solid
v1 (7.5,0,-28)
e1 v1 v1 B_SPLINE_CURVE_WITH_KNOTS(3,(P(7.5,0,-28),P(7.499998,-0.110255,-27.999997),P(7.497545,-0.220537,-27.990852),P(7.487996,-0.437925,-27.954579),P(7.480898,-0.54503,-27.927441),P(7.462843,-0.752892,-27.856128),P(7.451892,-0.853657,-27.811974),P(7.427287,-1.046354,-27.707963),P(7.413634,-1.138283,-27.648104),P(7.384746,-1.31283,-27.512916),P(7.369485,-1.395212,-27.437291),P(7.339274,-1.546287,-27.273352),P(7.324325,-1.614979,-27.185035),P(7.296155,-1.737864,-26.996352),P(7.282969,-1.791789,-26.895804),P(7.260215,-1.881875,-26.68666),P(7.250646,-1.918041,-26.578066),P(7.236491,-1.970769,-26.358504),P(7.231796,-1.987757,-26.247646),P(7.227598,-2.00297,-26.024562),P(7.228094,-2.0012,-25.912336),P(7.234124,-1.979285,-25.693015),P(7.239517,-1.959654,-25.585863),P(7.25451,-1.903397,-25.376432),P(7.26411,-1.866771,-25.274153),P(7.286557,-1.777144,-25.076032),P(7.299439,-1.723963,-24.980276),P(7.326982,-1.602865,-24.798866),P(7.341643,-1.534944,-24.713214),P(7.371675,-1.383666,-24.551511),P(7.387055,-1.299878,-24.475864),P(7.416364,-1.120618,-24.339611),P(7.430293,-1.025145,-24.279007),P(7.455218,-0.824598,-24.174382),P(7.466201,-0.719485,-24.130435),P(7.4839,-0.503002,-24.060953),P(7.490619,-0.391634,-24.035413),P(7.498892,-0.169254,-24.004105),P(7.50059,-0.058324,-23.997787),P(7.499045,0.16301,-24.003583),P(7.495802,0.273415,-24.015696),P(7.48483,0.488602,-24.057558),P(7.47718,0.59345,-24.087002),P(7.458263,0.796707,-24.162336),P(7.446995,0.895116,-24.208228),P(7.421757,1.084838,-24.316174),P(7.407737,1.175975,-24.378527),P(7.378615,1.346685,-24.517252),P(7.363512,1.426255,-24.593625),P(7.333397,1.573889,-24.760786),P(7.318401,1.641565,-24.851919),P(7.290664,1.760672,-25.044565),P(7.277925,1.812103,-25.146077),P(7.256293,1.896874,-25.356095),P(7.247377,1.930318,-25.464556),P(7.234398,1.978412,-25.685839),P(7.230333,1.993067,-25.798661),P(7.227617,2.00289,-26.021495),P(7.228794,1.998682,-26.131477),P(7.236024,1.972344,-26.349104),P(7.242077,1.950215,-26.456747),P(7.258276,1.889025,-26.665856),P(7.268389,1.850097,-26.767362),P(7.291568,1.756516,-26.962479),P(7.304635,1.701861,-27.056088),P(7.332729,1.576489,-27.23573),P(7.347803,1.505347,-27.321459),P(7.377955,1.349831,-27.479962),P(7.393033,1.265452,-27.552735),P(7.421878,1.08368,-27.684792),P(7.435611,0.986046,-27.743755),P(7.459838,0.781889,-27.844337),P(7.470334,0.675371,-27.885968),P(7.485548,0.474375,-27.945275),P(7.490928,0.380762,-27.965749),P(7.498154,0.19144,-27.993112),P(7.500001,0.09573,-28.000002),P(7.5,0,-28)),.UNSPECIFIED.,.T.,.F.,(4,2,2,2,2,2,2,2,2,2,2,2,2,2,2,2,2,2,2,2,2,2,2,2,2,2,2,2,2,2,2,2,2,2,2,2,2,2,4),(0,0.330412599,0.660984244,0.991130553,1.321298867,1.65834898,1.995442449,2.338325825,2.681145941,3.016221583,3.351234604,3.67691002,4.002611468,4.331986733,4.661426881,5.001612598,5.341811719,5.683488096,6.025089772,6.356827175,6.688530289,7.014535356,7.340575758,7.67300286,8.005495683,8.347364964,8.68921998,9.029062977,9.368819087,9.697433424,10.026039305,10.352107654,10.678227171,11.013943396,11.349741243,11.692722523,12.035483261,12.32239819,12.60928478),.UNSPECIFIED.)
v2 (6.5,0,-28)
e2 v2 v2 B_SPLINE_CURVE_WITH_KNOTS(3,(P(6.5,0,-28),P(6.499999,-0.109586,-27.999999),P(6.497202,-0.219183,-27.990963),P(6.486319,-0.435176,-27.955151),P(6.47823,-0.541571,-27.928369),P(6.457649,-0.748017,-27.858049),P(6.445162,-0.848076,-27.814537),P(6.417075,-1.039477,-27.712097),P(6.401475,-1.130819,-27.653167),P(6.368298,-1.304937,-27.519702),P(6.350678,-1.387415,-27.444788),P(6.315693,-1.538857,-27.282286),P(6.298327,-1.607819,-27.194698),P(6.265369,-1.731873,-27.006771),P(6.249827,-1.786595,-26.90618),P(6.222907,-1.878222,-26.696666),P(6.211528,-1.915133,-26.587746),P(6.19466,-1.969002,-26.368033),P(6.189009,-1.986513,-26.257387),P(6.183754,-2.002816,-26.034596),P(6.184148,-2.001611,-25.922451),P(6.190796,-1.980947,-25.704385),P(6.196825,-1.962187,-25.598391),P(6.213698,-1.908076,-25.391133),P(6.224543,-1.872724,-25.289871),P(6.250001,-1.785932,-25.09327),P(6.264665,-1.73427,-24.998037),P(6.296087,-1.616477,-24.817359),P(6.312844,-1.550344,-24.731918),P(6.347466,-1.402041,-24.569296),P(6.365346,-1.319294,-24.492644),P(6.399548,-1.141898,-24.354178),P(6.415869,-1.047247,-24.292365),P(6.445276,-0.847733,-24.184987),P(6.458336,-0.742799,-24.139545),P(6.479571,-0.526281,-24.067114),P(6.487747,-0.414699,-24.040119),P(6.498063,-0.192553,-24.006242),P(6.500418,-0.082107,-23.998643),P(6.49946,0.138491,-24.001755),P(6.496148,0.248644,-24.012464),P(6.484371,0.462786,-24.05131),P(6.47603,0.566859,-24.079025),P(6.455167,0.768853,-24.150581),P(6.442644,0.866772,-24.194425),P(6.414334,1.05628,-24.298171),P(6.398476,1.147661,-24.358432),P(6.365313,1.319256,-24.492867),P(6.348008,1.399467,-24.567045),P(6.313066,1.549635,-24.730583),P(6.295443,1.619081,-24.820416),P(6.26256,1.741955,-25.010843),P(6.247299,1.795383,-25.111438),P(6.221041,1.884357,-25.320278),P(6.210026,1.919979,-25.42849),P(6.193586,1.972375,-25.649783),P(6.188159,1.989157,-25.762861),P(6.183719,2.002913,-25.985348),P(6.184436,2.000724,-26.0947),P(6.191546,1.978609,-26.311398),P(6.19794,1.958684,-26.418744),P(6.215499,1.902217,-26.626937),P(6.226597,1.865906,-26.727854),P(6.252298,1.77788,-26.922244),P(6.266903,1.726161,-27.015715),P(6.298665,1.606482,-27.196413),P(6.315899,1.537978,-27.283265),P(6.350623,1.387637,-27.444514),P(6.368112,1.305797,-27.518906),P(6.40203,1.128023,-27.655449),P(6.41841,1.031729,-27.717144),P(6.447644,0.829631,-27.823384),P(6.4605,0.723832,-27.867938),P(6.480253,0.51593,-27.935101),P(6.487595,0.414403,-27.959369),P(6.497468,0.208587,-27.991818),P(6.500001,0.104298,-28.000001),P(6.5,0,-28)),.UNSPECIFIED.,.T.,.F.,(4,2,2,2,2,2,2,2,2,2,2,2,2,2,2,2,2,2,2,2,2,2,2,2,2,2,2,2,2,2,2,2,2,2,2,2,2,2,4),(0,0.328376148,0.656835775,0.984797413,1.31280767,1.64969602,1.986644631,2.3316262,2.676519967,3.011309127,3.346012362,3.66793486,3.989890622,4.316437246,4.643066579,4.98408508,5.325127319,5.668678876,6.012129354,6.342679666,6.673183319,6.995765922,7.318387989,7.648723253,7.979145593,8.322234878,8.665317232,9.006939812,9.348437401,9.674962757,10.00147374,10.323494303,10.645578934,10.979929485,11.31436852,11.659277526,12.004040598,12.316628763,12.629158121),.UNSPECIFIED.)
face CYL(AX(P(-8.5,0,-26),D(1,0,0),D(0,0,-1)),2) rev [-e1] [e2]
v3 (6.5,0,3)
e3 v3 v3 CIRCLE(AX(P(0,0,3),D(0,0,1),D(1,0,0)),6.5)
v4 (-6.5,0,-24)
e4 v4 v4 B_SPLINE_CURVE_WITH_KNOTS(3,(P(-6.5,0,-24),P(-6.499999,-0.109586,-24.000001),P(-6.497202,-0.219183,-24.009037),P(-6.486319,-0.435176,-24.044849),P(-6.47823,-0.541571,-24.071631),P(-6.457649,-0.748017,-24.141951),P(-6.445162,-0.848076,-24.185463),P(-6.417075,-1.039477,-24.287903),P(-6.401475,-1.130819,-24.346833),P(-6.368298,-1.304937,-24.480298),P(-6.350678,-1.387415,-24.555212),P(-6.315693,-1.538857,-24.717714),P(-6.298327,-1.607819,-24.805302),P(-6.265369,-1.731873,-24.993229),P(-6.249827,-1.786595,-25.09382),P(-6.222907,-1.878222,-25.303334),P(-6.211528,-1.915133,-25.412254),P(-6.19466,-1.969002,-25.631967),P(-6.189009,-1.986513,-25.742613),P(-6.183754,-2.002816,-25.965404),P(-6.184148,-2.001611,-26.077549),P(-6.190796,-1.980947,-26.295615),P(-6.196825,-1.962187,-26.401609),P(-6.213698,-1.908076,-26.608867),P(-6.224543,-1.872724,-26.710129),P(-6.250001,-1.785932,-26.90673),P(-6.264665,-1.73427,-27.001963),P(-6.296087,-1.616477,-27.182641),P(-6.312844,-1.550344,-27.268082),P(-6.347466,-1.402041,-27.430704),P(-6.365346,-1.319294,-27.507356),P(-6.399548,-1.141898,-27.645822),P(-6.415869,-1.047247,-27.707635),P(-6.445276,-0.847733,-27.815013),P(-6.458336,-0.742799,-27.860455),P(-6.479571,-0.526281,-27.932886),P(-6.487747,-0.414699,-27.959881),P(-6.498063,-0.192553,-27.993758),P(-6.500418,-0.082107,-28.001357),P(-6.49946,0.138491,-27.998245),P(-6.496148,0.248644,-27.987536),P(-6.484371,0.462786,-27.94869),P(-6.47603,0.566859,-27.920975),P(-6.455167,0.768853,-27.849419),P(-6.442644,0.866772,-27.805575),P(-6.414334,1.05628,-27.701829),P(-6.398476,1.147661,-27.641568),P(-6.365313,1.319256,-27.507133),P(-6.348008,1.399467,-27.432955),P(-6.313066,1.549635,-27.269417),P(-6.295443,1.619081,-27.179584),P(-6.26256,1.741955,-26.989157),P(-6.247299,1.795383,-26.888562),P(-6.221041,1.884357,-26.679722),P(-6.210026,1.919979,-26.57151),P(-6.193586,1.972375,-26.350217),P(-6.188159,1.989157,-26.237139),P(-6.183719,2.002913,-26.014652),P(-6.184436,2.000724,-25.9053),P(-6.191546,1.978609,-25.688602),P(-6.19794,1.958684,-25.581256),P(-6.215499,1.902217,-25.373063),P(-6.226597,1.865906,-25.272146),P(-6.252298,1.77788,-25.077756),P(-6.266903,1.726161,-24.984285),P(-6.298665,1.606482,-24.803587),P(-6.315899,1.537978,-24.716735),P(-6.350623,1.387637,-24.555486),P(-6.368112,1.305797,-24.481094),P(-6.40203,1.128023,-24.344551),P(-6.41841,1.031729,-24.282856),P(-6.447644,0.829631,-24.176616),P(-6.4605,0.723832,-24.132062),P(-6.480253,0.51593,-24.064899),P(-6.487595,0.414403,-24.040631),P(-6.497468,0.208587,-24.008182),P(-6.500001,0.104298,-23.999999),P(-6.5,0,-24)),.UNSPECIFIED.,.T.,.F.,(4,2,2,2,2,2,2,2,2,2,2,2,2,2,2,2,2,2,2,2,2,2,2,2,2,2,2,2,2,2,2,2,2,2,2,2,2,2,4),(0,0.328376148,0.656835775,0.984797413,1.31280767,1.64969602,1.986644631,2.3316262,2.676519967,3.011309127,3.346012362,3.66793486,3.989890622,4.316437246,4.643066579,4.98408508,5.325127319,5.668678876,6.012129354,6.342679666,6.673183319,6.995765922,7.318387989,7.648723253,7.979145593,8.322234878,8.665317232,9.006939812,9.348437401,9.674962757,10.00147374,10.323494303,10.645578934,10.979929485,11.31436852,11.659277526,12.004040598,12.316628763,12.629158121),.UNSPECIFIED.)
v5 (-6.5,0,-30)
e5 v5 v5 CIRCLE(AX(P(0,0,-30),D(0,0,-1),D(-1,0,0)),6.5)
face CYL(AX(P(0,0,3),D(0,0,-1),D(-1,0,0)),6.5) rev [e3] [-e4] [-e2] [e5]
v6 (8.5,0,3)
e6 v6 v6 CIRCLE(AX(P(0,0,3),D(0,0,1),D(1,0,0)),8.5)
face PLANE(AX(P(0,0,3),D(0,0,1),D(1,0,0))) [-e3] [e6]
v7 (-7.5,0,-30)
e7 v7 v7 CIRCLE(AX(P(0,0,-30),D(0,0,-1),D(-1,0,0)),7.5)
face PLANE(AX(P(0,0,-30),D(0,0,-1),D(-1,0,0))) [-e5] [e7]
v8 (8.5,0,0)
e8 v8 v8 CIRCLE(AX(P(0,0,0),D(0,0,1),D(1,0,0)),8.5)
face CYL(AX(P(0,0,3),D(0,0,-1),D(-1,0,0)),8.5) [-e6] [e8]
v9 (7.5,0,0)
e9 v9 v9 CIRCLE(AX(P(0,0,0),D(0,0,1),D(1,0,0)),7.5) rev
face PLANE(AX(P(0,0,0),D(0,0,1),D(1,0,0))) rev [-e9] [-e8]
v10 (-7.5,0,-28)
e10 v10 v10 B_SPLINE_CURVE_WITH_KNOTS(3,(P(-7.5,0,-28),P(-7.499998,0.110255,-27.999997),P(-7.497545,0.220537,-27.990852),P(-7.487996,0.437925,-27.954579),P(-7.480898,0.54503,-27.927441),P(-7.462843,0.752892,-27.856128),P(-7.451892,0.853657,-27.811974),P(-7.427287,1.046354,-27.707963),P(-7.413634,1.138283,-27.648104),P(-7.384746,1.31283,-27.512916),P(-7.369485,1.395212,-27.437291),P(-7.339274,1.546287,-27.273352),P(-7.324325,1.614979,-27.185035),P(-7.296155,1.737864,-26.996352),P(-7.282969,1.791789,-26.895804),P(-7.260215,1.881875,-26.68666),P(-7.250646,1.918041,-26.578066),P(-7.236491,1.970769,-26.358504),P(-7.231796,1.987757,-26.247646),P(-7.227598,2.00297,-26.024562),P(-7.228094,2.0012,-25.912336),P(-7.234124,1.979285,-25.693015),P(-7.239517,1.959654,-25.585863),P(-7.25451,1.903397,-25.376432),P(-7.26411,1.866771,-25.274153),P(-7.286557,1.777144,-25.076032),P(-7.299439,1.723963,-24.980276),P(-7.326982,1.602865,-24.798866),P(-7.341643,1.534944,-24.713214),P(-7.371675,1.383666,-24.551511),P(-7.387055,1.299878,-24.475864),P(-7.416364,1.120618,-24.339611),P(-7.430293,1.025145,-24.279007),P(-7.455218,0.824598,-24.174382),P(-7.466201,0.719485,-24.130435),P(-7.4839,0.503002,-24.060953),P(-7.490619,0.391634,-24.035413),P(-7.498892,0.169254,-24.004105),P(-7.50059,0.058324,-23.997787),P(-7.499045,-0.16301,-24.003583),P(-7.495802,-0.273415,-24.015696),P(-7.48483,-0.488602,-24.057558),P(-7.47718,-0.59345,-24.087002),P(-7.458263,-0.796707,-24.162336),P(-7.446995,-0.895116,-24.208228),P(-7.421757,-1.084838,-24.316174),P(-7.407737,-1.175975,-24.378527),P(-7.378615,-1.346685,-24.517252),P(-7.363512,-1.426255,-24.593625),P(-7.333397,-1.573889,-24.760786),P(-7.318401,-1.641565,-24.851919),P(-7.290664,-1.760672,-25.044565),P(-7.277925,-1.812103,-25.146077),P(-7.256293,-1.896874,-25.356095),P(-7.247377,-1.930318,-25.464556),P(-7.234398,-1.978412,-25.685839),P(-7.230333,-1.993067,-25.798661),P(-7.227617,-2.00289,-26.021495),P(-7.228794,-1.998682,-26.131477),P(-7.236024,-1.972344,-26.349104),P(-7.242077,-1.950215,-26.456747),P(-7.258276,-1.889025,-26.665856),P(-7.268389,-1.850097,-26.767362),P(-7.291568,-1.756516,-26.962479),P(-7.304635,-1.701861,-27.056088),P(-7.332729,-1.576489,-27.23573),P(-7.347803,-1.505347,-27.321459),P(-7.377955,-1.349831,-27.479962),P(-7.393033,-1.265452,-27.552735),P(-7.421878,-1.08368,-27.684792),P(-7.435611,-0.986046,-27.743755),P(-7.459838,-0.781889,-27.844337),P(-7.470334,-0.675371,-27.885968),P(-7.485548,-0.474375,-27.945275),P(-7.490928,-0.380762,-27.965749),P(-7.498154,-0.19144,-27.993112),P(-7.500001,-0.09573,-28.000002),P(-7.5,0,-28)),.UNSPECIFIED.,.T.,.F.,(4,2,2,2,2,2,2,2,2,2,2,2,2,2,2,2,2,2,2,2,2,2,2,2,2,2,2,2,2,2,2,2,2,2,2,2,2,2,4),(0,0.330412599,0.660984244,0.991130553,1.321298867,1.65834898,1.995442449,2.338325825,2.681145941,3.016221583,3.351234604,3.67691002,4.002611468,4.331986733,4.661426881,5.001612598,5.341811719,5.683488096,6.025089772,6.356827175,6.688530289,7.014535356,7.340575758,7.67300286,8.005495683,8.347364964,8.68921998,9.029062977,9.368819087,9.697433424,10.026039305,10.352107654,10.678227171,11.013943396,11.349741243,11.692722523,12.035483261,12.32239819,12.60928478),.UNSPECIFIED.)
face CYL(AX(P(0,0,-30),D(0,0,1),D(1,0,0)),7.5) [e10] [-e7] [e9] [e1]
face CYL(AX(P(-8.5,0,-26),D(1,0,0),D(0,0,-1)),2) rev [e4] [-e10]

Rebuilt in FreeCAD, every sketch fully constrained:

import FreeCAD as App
import Part
import Sketcher
from FreeCAD import Vector
Q = App.Units.Quantity

doc = App.newDocument("Part")
body = doc.addObject("PartDesign::Body", "Body")

sketch1 = body.newObject("Sketcher::SketchObject", "Sketch")
sketch1.AttachmentSupport = (doc.getObject("XY_Plane"), [""])
sketch1.MapMode = "FlatFace"
sketch1.addGeometry(Part.Circle(Vector(0, 0, 0), Vector(0, 0, 1), 8), False)
sketch1.addGeometry(Part.Circle(Vector(0, 0, 0), Vector(0, 0, 1), 6), False)
sketch1.addConstraint(Sketcher.Constraint("Coincident", 0, 3, -1, 1))
sketch1.addConstraint(Sketcher.Constraint("Coincident", 1, 3, -1, 1))
sketch1.addConstraint(Sketcher.Constraint("Diameter", 0, Q("17 mm")))
sketch1.addConstraint(Sketcher.Constraint("Diameter", 1, Q("13 mm")))
pad1 = body.newObject("PartDesign::Pad", "Pad")
pad1.Profile = sketch1
pad1.Length = 3

sketch2 = body.newObject("Sketcher::SketchObject", "Sketch001")
sketch2.AttachmentSupport = (doc.getObject("XY_Plane"), [""])
sketch2.MapMode = "FlatFace"
sketch2.addGeometry(Part.Circle(Vector(0, 0, 0), Vector(0, 0, 1), 8), False)
sketch2.addGeometry(Part.Circle(Vector(0, 0, 0), Vector(0, 0, 1), 6), False)
sketch2.addConstraint(Sketcher.Constraint("Coincident", 0, 3, -1, 1))
sketch2.addConstraint(Sketcher.Constraint("Coincident", 1, 3, -1, 1))
sketch2.addConstraint(Sketcher.Constraint("Diameter", 0, Q("15 mm")))
sketch2.addConstraint(Sketcher.Constraint("Diameter", 1, Q("13 mm")))
pad2 = body.newObject("PartDesign::Pad", "Pad001")
pad2.Profile = sketch2
pad2.Length = 30
pad2.Reversed = True

sketch3 = body.newObject("Sketcher::SketchObject", "Sketch002")
sketch3.AttachmentSupport = (doc.getObject("YZ_Plane"), [""])
sketch3.MapMode = "FlatFace"
sketch3.addGeometry(Part.Circle(Vector(0, -26, 0), Vector(0, 0, 1), 2), False)
sketch3.addConstraint(Sketcher.Constraint("PointOnObject", 0, 3, -2))
sketch3.addConstraint(Sketcher.Constraint("Diameter", 0, Q("4 mm")))
sketch3.addConstraint(Sketcher.Constraint("DistanceY", 0, 3, -1, 1, Q("26 mm")))
pocket1 = body.newObject("PartDesign::Pocket", "Pocket")
pocket1.Profile = sketch3
pocket1.Type = "ThroughAll"
pocket1.Midplane = True

doc.recompute()
